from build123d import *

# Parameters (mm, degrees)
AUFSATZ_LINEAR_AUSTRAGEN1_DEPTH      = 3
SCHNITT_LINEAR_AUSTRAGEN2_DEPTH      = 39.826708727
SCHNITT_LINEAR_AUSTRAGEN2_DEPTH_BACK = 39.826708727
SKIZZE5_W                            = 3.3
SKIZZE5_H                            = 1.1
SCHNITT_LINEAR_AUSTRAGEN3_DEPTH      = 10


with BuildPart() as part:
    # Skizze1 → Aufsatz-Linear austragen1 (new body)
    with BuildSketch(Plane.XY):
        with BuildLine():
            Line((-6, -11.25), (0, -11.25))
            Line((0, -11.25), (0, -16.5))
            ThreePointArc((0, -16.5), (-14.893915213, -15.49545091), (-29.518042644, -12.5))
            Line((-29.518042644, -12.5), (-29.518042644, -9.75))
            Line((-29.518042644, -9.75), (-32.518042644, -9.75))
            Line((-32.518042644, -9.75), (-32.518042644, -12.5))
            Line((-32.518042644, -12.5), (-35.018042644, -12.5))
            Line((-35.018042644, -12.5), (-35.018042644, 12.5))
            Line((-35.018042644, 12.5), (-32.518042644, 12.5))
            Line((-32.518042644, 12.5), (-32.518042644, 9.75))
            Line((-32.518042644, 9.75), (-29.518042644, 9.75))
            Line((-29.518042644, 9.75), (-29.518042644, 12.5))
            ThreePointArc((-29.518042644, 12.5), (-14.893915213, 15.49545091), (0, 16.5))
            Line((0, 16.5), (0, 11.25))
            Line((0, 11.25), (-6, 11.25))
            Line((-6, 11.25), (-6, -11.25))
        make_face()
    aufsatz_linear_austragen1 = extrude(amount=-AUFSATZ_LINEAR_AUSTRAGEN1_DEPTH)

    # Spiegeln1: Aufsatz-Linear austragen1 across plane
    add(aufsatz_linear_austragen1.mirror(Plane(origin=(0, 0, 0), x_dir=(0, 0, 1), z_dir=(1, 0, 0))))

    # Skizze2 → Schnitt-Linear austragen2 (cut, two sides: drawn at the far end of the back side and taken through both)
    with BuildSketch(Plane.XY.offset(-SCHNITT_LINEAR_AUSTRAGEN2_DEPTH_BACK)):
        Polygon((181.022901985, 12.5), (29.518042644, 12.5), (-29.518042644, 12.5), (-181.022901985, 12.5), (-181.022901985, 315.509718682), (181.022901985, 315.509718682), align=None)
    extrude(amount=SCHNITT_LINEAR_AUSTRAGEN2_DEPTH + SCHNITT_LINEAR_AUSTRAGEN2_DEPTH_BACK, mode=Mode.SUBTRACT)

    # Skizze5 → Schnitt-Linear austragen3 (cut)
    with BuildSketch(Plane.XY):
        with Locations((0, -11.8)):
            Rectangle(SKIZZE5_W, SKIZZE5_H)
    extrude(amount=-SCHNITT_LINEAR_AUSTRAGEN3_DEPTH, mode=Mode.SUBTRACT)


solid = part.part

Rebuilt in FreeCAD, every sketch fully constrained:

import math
import FreeCAD as App
import Part
import Sketcher
from FreeCAD import Vector

doc = App.newDocument("Part")
body = doc.addObject("PartDesign::Body", "Body")

# Sketch on XY plane
sketch1 = doc.addObject("Sketcher::SketchObject", "Sketch")
body.addObject(sketch1)
sketch1.AttachmentSupport = (doc.XY_Plane, [""])
sketch1.MapMode = "FlatFace"
sketch1.addGeometry([
    Part.LineSegment(Vector(0, -11.25, 0), Vector(-6, -11.25, 0)),  # 0
    Part.LineSegment(Vector(-6, -11.25, 0), Vector(-6, 11.25, 0)),  # 1
    Part.LineSegment(Vector(-6, 11.25, 0), Vector(0, 11.25, 0)),  # 2
    Part.LineSegment(Vector(0, 11.25, 0), Vector(0, 16.5, 0)),  # 3
    Part.ArcOfCircle(Part.Circle(Vector(0, -94.414355, 0), Vector(0, 0, 1), 110.914355), math.radians(90), math.radians(105.434326)),  # 4
    Part.LineSegment(Vector(-29.518043, 12.5, 0), Vector(-29.518043, 9.75, 0)),  # 5
    Part.LineSegment(Vector(-29.518043, 9.75, 0), Vector(-32.518043, 9.75, 0)),  # 6
    Part.LineSegment(Vector(-32.518043, 9.75, 0), Vector(-32.518043, 12.5, 0)),  # 7
    Part.LineSegment(Vector(-32.518043, 12.5, 0), Vector(-35.018043, 12.5, 0)),  # 8
    Part.LineSegment(Vector(-35.018043, 12.5, 0), Vector(-35.018043, -12.5, 0)),  # 9
    Part.LineSegment(Vector(-35.018043, -12.5, 0), Vector(-32.518043, -12.5, 0)),  # 10
    Part.LineSegment(Vector(-32.518043, -12.5, 0), Vector(-32.518043, -9.75, 0)),  # 11
    Part.LineSegment(Vector(-32.518043, -9.75, 0), Vector(-29.518043, -9.75, 0)),  # 12
    Part.LineSegment(Vector(-29.518043, -9.75, 0), Vector(-29.518043, -12.5, 0)),  # 13
    Part.ArcOfCircle(Part.Circle(Vector(0, 94.414355, 0), Vector(0, 0, 1), 110.914355), math.radians(-105.434326), math.radians(-90)),  # 14
    Part.LineSegment(Vector(0, -16.5, 0), Vector(0, -11.25, 0)),  # 15
], False)
sketch1.addConstraint([
    Sketcher.Constraint("Coincident", 0, 2, 1, 1),
    Sketcher.Constraint("Coincident", 1, 2, 2, 1),
    Sketcher.Constraint("Coincident", 2, 2, 3, 1),
    Sketcher.Constraint("Coincident", 3, 2, 4, 1),
    Sketcher.Constraint("Coincident", 4, 2, 5, 1),
    Sketcher.Constraint("Coincident", 5, 2, 6, 1),
    Sketcher.Constraint("Coincident", 6, 2, 7, 1),
    Sketcher.Constraint("Coincident", 7, 2, 8, 1),
    Sketcher.Constraint("Coincident", 8, 2, 9, 1),
    Sketcher.Constraint("Coincident", 9, 2, 10, 1),
    Sketcher.Constraint("Coincident", 10, 2, 11, 1),
    Sketcher.Constraint("Coincident", 11, 2, 12, 1),
    Sketcher.Constraint("Coincident", 12, 2, 13, 1),
    Sketcher.Constraint("Coincident", 13, 2, 14, 1),
    Sketcher.Constraint("Coincident", 14, 2, 15, 1),
    Sketcher.Constraint("Coincident", 15, 2, 0, 1),
    Sketcher.Constraint("Horizontal", 0),
    Sketcher.Constraint("Vertical", 1),
    Sketcher.Constraint("Horizontal", 2),
    Sketcher.Constraint("Vertical", 3),
    Sketcher.Constraint("Vertical", 5),
    Sketcher.Constraint("Horizontal", 6),
    Sketcher.Constraint("Vertical", 7),
    Sketcher.Constraint("Horizontal", 8),
    Sketcher.Constraint("Vertical", 9),
    Sketcher.Constraint("Horizontal", 10),
    Sketcher.Constraint("Vertical", 11),
    Sketcher.Constraint("Horizontal", 12),
    Sketcher.Constraint("Vertical", 13),
    Sketcher.Constraint("Vertical", 15),
    Sketcher.Constraint("Equal", 4, 14),
    Sketcher.Constraint("Symmetric", 4, 3, 14, 3, -1, 1),
    Sketcher.Constraint("Symmetric", 2, 2, 15, 2, -1, 1),
    Sketcher.Constraint("Symmetric", 7, 2, 10, 2, -1),
    Sketcher.Constraint("Symmetric", 5, 2, 12, 2, -1),
    Sketcher.Constraint("PointOnObject", 4, 3, -2),
    Sketcher.Constraint("PointOnObject", 2, 2, -2),
    Sketcher.Constraint("Horizontal", 4, 2, 7, 2),
    Sketcher.Constraint("DistanceX", 0, 2, 0, 1, 6.0),
    Sketcher.Constraint("DistanceX", 6, 2, 6, 1, 3.0),
    Sketcher.Constraint("DistanceY", 9, 2, 9, 1, 25.0),
    Sketcher.Constraint("DistanceX", 8, 2, 8, 1, 2.5),
    Sketcher.Constraint("DistanceY", 1, 1, 1, 2, 22.5),
    Sketcher.Constraint("DistanceY", 4, 2, 3, 2, 4.0),
    Sketcher.Constraint("DistanceY", 0, 2, 5, 2, 21.0),
    Sketcher.Constraint("Radius", 4, 110.914355),
])
pad1 = doc.addObject("PartDesign::Pad", "Pad")
body.addObject(pad1)
pad1.Profile = sketch1
pad1.Length = 3
pad1.Reversed = True
doc.recompute()

mirrored = doc.addObject("PartDesign::Mirrored", "Mirrored")
body.addObject(mirrored)
mirrored.Originals = [pad1]
mirrored.MirrorPlane = (doc.YZ_Plane, [""])
body.Tip = mirrored

# Sketch on XY plane
sketch2 = doc.addObject("Sketcher::SketchObject", "Sketch001")
body.addObject(sketch2)
sketch2.AttachmentSupport = (doc.XY_Plane, [""])
sketch2.MapMode = "FlatFace"
sketch2.addGeometry([
    Part.LineSegment(Vector(-181.022902, 12.5, 0), Vector(181.022902, 12.5, 0)),
    Part.LineSegment(Vector(181.022902, 12.5, 0), Vector(181.022902, 315.509719, 0)),
    Part.LineSegment(Vector(181.022902, 315.509719, 0), Vector(-181.022902, 315.509719, 0)),
    Part.LineSegment(Vector(-181.022902, 315.509719, 0), Vector(-181.022902, 12.5, 0)),
], False)
sketch2.addConstraint([
    Sketcher.Constraint("Coincident", 0, 2, 1, 1),
    Sketcher.Constraint("Coincident", 1, 2, 2, 1),
    Sketcher.Constraint("Coincident", 2, 2, 3, 1),
    Sketcher.Constraint("Coincident", 3, 2, 0, 1),
    Sketcher.Constraint("Horizontal", 0),
    Sketcher.Constraint("Vertical", 1),
    Sketcher.Constraint("Horizontal", 2),
    Sketcher.Constraint("Vertical", 3),
    Sketcher.Constraint("DistanceY", -1, 1, 0, 2, 12.5),
    Sketcher.Constraint("DistanceY", 1, 1, 1, 2, 303.009719),
    Sketcher.Constraint("DistanceX", -1, 1, 0, 2, 181.022902),
    Sketcher.Constraint("DistanceX", 2, 2, -1, 1, 181.022902),
])
pocket1 = doc.addObject("PartDesign::Pocket", "Pocket")
body.addObject(pocket1)
pocket1.Profile = sketch2
pocket1.Type = "ThroughAll"
pocket1.Midplane = True

# Sketch on XY plane
sketch3 = doc.addObject("Sketcher::SketchObject", "Sketch002")
body.addObject(sketch3)
sketch3.AttachmentSupport = (doc.XY_Plane, [""])
sketch3.MapMode = "FlatFace"
sketch3.addGeometry([
    Part.LineSegment(Vector(-1.65, -11.25, 0), Vector(-1.65, -12.35, 0)),
    Part.LineSegment(Vector(-1.65, -12.35, 0), Vector(1.65, -12.35, 0)),
    Part.LineSegment(Vector(1.65, -12.35, 0), Vector(1.65, -11.25, 0)),
    Part.LineSegment(Vector(1.65, -11.25, 0), Vector(-1.65, -11.25, 0)),
], False)
sketch3.addConstraint([
    Sketcher.Constraint("Coincident", 0, 2, 1, 1),
    Sketcher.Constraint("Coincident", 1, 2, 2, 1),
    Sketcher.Constraint("Coincident", 2, 2, 3, 1),
    Sketcher.Constraint("Coincident", 3, 2, 0, 1),
    Sketcher.Constraint("Vertical", 0),
    Sketcher.Constraint("Horizontal", 1),
    Sketcher.Constraint("Vertical", 2),
    Sketcher.Constraint("Horizontal", 3),
    Sketcher.Constraint("DistanceX", 1, 1, 1, 2, 3.3),
    Sketcher.Constraint("DistanceY", 0, 2, 0, 1, 1.1),
    Sketcher.Constraint("DistanceX", 0, 2, -1, 1, 1.65),
    Sketcher.Constraint("DistanceY", 0, 2, -1, 1, 12.35),
])
pocket2 = doc.addObject("PartDesign::Pocket", "Pocket001")
body.addObject(pocket2)
pocket2.Profile = sketch3
pocket2.Length = 10

doc.recompute()
